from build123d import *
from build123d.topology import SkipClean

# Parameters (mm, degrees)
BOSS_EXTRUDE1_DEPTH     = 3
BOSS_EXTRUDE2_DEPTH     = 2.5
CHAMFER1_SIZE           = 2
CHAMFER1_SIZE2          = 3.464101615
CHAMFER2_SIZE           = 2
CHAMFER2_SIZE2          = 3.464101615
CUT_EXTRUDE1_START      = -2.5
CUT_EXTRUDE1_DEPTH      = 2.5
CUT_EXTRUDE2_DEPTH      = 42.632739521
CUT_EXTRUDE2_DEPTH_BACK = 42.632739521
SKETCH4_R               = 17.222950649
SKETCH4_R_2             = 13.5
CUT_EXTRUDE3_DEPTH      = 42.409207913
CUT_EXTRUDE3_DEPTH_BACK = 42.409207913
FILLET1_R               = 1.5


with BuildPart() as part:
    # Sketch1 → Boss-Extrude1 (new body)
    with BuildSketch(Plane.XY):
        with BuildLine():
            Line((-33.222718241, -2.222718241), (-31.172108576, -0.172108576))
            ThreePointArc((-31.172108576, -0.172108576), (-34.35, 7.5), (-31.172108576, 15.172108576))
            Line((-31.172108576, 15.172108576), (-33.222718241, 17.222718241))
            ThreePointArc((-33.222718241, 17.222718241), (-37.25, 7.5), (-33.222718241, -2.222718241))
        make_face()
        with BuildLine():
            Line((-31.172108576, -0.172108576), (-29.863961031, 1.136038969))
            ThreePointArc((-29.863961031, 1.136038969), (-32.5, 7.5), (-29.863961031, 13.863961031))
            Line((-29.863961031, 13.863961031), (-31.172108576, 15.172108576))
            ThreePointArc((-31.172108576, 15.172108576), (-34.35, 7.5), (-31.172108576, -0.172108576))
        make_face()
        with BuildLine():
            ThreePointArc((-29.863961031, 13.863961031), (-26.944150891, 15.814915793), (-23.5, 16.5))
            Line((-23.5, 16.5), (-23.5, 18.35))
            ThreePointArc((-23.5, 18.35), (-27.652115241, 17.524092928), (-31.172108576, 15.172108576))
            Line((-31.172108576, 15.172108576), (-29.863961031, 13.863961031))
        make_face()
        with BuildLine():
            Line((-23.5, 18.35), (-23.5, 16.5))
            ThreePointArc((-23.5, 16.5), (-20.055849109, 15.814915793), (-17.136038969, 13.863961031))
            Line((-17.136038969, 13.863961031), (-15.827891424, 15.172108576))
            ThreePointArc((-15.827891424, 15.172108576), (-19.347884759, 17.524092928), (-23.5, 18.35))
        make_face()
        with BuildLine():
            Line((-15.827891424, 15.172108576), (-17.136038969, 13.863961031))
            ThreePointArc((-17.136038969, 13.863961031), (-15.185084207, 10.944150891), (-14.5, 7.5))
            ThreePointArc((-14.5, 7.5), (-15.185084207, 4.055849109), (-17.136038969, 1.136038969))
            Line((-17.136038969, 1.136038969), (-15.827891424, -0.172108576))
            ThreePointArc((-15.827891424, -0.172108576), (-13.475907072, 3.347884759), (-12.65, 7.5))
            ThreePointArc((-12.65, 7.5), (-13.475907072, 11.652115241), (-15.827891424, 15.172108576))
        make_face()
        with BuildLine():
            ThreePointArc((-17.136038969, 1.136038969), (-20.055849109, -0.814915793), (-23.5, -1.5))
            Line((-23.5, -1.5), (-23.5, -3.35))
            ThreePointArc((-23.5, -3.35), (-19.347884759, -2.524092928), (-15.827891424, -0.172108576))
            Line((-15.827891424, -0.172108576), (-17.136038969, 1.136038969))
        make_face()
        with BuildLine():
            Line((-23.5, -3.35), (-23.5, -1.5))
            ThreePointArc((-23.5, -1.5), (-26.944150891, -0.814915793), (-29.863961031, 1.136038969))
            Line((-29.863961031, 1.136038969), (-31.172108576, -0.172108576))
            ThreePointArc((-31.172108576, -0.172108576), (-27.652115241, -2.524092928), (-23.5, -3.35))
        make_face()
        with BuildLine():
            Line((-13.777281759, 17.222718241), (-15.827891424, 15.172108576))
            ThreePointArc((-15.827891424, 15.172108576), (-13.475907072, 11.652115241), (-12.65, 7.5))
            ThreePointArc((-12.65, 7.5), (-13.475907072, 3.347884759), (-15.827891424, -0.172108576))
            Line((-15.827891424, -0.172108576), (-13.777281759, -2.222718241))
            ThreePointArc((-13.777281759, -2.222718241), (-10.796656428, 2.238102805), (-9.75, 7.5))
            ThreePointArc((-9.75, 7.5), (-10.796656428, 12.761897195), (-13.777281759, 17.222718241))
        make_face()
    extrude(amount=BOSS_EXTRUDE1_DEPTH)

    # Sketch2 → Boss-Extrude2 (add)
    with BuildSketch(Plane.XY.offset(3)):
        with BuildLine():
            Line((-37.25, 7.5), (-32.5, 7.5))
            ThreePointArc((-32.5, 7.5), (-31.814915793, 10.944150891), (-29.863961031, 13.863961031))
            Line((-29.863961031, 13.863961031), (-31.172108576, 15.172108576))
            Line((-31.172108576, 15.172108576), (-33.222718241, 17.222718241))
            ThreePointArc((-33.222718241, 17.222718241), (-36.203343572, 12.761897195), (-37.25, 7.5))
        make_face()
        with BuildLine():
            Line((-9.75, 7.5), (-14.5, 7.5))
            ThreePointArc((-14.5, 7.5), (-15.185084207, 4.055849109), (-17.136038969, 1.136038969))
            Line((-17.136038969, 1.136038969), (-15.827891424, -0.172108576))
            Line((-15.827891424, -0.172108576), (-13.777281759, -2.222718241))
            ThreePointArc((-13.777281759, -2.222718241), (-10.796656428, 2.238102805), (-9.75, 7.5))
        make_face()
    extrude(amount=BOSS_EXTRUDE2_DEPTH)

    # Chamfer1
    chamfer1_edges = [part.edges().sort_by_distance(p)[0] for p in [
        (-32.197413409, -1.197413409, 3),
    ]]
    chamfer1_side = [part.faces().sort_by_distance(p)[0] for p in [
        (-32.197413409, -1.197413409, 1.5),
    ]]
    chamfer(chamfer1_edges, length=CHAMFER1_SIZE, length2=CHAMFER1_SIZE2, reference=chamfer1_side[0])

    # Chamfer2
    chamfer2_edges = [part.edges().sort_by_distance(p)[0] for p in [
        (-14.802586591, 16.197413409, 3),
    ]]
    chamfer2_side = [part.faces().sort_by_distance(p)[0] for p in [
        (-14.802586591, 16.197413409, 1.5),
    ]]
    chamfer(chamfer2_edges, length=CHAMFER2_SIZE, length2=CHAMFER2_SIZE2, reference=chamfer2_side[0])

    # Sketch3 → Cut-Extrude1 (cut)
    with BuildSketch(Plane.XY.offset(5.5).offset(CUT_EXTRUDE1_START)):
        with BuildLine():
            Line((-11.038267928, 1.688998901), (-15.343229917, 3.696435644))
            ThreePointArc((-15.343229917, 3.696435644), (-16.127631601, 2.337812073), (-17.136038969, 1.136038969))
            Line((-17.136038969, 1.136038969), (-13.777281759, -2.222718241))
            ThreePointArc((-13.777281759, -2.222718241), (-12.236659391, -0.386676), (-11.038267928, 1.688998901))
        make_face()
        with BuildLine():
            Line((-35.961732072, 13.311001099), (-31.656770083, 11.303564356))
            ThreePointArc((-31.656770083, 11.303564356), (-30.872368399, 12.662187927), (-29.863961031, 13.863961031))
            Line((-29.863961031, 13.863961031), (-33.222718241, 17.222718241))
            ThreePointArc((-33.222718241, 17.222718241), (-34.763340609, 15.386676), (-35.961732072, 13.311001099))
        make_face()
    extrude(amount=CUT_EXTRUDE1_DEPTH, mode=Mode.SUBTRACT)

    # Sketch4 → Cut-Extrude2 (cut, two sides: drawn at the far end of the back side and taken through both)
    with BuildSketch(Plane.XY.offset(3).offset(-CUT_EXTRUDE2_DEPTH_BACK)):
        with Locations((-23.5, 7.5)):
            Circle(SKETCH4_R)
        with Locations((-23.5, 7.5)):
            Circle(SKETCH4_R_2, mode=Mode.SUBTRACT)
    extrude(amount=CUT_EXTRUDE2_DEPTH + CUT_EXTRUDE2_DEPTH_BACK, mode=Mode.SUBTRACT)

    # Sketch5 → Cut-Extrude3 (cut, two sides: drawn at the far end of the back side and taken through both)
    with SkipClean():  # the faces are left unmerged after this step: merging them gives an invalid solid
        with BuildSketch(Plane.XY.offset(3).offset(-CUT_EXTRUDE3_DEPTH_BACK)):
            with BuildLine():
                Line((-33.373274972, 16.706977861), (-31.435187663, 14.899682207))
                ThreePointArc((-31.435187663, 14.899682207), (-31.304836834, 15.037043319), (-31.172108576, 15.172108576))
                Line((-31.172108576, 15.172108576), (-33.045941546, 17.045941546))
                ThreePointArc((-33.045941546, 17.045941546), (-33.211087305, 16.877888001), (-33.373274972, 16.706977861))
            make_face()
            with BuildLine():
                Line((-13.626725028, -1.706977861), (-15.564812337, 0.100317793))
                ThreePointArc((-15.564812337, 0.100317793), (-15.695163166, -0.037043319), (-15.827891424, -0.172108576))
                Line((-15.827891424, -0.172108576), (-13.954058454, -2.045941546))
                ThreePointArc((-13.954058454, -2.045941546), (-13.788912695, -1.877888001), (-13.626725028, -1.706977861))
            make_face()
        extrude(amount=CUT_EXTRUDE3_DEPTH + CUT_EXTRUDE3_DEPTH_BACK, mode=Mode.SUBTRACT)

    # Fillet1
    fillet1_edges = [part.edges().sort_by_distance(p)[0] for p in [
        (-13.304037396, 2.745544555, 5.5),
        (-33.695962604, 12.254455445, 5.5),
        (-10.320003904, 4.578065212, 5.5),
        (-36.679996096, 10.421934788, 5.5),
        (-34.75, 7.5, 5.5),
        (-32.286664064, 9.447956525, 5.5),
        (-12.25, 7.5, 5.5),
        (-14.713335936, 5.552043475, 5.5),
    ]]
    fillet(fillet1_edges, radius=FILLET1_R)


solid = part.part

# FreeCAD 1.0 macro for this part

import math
import FreeCAD as App
import Part
import Sketcher

V = App.Vector
Q = App.Units.Quantity


def edges_at(feature, points):
    """Names of the edges that pass closest to the given points."""
    edges = feature.Shape.Edges
    near = lambda p: min(range(len(edges)), key=lambda i: edges[i].distToShape(Part.Vertex(*p))[0])
    return sorted({f"Edge{near(p) + 1}" for p in points})

doc = App.newDocument("Part")
params = doc.addObject("Spreadsheet::Sheet", "Params")
for row, (alias, value) in enumerate([
    ("sketch1_radius", "9 mm"),
    ("sketch1_radius2", "10.85 mm"),
    ("sketch1_radius3", "13.75 mm"),
    ("pad1_length", "3 mm"),
    ("sketch2_radius", "9 mm"),
    ("sketch2_radius2", "13.75 mm"),
    ("pad2_length", "2.5 mm"),
    ("chamfer_size", "2 mm"),
    ("chamfer_size2", "3.464102 mm"),
    ("chamfer2_size", "2 mm"),
    ("chamfer2_size2", "3.464102 mm"),
    ("sketch3_radius", "9 mm"),
    ("sketch3_radius2", "13.75 mm"),
    ("pocket1_length", "2.5 mm"),
    ("sketch4_diameter", "27 mm"),
    ("sketch5_radius", "13.499999 mm"),
    ("sketch5_length", "2.65 mm"),
    ("fillet_radius", "1.5 mm"),
], start=1):
    params.set(f"A{row}", alias)
    params.set(f"B{row}", "=" + value)
    params.setAlias(f"B{row}", alias)

body = doc.addObject("PartDesign::Body", "Body")

# Sketch on XY plane
sketch1 = body.newObject("Sketcher::SketchObject", "Sketch")
sketch1.AttachmentSupport = (doc.getObject("XY_Plane"), [""])
sketch1.MapMode = "FlatFace"
sketch1.addGeometry([
    Part.LineSegment(V(-33.2, -2.2, 0), V(-31.2, -0.2, 0)),  # 0
    Part.ArcOfCircle(Part.Circle(V(-23.5, 7.5, 0), V(0, 0, 1), 10.8), math.radians(-135), math.radians(-90)),  # 1
    Part.ArcOfCircle(Part.Circle(V(-23.5, 7.5, 0), V(0, 0, 1), 10.8), math.radians(-90), math.radians(-45)),  # 2
    Part.LineSegment(V(-15.8, -0.2, 0), V(-13.8, -2.2, 0)),  # 3
    Part.ArcOfCircle(Part.Circle(V(-23.5, 7.5, 0), V(0, 0, 1), 13.7), math.radians(-45), math.radians(0)),  # 4
    Part.ArcOfCircle(Part.Circle(V(-23.5, 7.5, 0), V(0, 0, 1), 13.7), math.radians(0), math.radians(45)),  # 5
    Part.LineSegment(V(-13.8, 17.2, 0), V(-15.8, 15.2, 0)),  # 6
    Part.ArcOfCircle(Part.Circle(V(-23.5, 7.5, 0), V(0, 0, 1), 10.8), math.radians(45), math.radians(90)),  # 7
    Part.ArcOfCircle(Part.Circle(V(-23.5, 7.5, 0), V(0, 0, 1), 10.8), math.radians(90), math.radians(135)),  # 8
    Part.LineSegment(V(-31.2, 15.2, 0), V(-33.2, 17.2, 0)),  # 9
    Part.ArcOfCircle(Part.Circle(V(-23.5, 7.5, 0), V(0, 0, 1), 13.7), math.radians(135), math.radians(225)),  # 10
    Part.ArcOfCircle(Part.Circle(V(-23.5, 7.5, 0), V(0, 0, 1), 9), math.radians(135), math.radians(225)),  # 11
    Part.ArcOfCircle(Part.Circle(V(-23.5, 7.5, 0), V(0, 0, 1), 9), math.radians(90), math.radians(135)),  # 12
    Part.ArcOfCircle(Part.Circle(V(-23.5, 7.5, 0), V(0, 0, 1), 9), math.radians(45), math.radians(90)),  # 13
    Part.ArcOfCircle(Part.Circle(V(-23.5, 7.5, 0), V(0, 0, 1), 9), math.radians(0), math.radians(45)),  # 14
    Part.ArcOfCircle(Part.Circle(V(-23.5, 7.5, 0), V(0, 0, 1), 9), math.radians(-45), math.radians(0)),  # 15
    Part.ArcOfCircle(Part.Circle(V(-23.5, 7.5, 0), V(0, 0, 1), 9), math.radians(-90), math.radians(-45)),  # 16
    Part.ArcOfCircle(Part.Circle(V(-23.5, 7.5, 0), V(0, 0, 1), 9), math.radians(-135), math.radians(-90)),  # 17
], False)
sketch1.addConstraint([
    Sketcher.Constraint("Coincident", 0, 2, 1, 1),
    Sketcher.Constraint("Tangent", 1, 2, 2, 1),
    Sketcher.Constraint("Coincident", 2, 2, 3, 1),
    Sketcher.Constraint("Coincident", 3, 2, 4, 1),
    Sketcher.Constraint("Tangent", 4, 2, 5, 1),
    Sketcher.Constraint("Coincident", 5, 2, 6, 1),
    Sketcher.Constraint("Coincident", 6, 2, 7, 1),
    Sketcher.Constraint("Tangent", 7, 2, 8, 1),
    Sketcher.Constraint("Coincident", 8, 2, 9, 1),
    Sketcher.Constraint("Coincident", 9, 2, 10, 1),
    Sketcher.Constraint("Coincident", 10, 2, 0, 1),
    Sketcher.Constraint("Tangent", 11, 1, 12, 2),
    Sketcher.Constraint("Tangent", 12, 1, 13, 2),
    Sketcher.Constraint("Tangent", 13, 1, 14, 2),
    Sketcher.Constraint("Tangent", 14, 1, 15, 2),
    Sketcher.Constraint("Tangent", 15, 1, 16, 2),
    Sketcher.Constraint("Tangent", 16, 1, 17, 2),
    Sketcher.Constraint("Tangent", 17, 1, 11, 2),
    Sketcher.Constraint("Coincident", 4, 3, 1, 3),
    Sketcher.Constraint("Coincident", 7, 3, 1, 3),
    Sketcher.Constraint("Coincident", 10, 3, 1, 3),
    Sketcher.Constraint("Coincident", 11, 3, 1, 3),
    Sketcher.Constraint("Coincident", 13, 3, 1, 3),
    Sketcher.Constraint("Coincident", 15, 3, 1, 3),
    Sketcher.Constraint("Equal", 1, 2),
    Sketcher.Constraint("Equal", 4, 5),
    Sketcher.Constraint("Equal", 2, 7),
    Sketcher.Constraint("Equal", 7, 8),
    Sketcher.Constraint("Equal", 5, 10),
    Sketcher.Constraint("Perpendicular", 0, 3),
    Sketcher.Constraint("Perpendicular", 3, 6),
    Sketcher.Constraint("Perpendicular", 6, 9),
    Sketcher.Constraint("Horizontal", 0, 2, 2, 2),
    Sketcher.Constraint("Horizontal", 17, 3, 4, 2),
    Sketcher.Constraint("Horizontal", 6, 2, 8, 2),
    Sketcher.Constraint("Horizontal", 5, 2, 9, 2),
    Sketcher.Constraint("Horizontal", 11, 1, 13, 1),
    Sketcher.Constraint("Horizontal", 4, 2, 14, 1),
    Sketcher.Constraint("Horizontal", 15, 1, 17, 1),
    Sketcher.Constraint("Vertical", 17, 3, 1, 2),
    Sketcher.Constraint("Vertical", 3, 2, 5, 2),
    Sketcher.Constraint("Vertical", 1, 2, 7, 2),
    Sketcher.Constraint("Vertical", 7, 2, 12, 1),
    Sketcher.Constraint("Vertical", 13, 1, 15, 1),
    Sketcher.Constraint("Vertical", 12, 1, 16, 1),
    Sketcher.Constraint("Radius", 11, Q("9 mm")),
    Sketcher.Constraint("Radius", 1, Q("10.85 mm")),
    Sketcher.Constraint("Radius", 4, Q("13.75 mm")),
    Sketcher.Constraint("DistanceX", 1, 3, -1, 1, Q("23.5 mm")),
    Sketcher.Constraint("DistanceY", -1, 1, 1, 3, Q("7.5 mm")),
    Sketcher.Constraint("DistanceX", 0, 2, -1, 1, Q("31.172109 mm")),
    Sketcher.Constraint("DistanceX", 11, 1, -1, 1, Q("29.863961 mm")),
])
sketch1.setExpression("Constraints[45]", "Params.sketch1_radius")
sketch1.setExpression("Constraints[46]", "Params.sketch1_radius2")
sketch1.setExpression("Constraints[47]", "Params.sketch1_radius3")
pad1 = body.newObject("PartDesign::Pad", "Pad")
pad1.Profile = sketch1
pad1.setExpression("Length", "Params.pad1_length")

# Sketch on XY plane
sketch2 = body.newObject("Sketcher::SketchObject", "Sketch001")
sketch2.AttachmentSupport = (doc.getObject("XY_Plane"), [""])
sketch2.MapMode = "FlatFace"
sketch2.AttachmentOffset = App.Placement(V(0, 0, 3), App.Rotation())
sketch2.addGeometry([
    Part.LineSegment(V(-37.2, 7.5, 0), V(-32.5, 7.5, 0)),  # 0
    Part.ArcOfCircle(Part.Circle(V(-23.5, 7.5, 0), V(0, 0, 1), 9), math.radians(135), math.radians(180)),  # 1
    Part.LineSegment(V(-29.9, 13.9, 0), V(-33.2, 17.2, 0)),  # 2
    Part.ArcOfCircle(Part.Circle(V(-23.5, 7.5, 0), V(0, 0, 1), 13.7), math.radians(135), math.radians(180)),  # 3
    Part.LineSegment(V(-9.8, 7.5, 0), V(-14.5, 7.5, 0)),  # 4
    Part.ArcOfCircle(Part.Circle(V(-23.5, 7.5, 0), V(0, 0, 1), 9), math.radians(-45), math.radians(0)),  # 5
    Part.LineSegment(V(-17.1, 1.1, 0), V(-13.8, -2.2, 0)),  # 6
    Part.ArcOfCircle(Part.Circle(V(-23.5, 7.5, 0), V(0, 0, 1), 13.7), math.radians(-45), math.radians(0)),  # 7
], False)
sketch2.addConstraint([
    Sketcher.Constraint("Coincident", 0, 2, 1, 2),
    Sketcher.Constraint("Coincident", 1, 1, 2, 1),
    Sketcher.Constraint("Coincident", 2, 2, 3, 1),
    Sketcher.Constraint("Coincident", 3, 2, 0, 1),
    Sketcher.Constraint("Coincident", 4, 2, 5, 2),
    Sketcher.Constraint("Coincident", 5, 1, 6, 1),
    Sketcher.Constraint("Coincident", 6, 2, 7, 1),
    Sketcher.Constraint("Coincident", 7, 2, 4, 1),
    Sketcher.Constraint("Horizontal", 0),
    Sketcher.Constraint("Horizontal", 4),
    Sketcher.Constraint("Coincident", 3, 3, 1, 3),
    Sketcher.Constraint("Coincident", 5, 3, 1, 3),
    Sketcher.Constraint("Coincident", 7, 3, 1, 3),
    Sketcher.Constraint("Equal", 1, 5),
    Sketcher.Constraint("Equal", 3, 7),
    Sketcher.Constraint("Parallel", 2, 6),
    Sketcher.Constraint("Horizontal", 7, 3, 0, 2),
    Sketcher.Constraint("Horizontal", 3, 2, 4, 2),
    Sketcher.Constraint("Radius", 1, Q("9 mm")),
    Sketcher.Constraint("Angle", 2, Q("135 deg")),
    Sketcher.Constraint("Radius", 3, Q("13.75 mm")),
    Sketcher.Constraint("DistanceX", 1, 3, -1, 1, Q("23.5 mm")),
    Sketcher.Constraint("DistanceY", -1, 1, 1, 3, Q("7.5 mm")),
    Sketcher.Constraint("DistanceX", 1, 1, -1, 1, Q("29.863961 mm")),
    Sketcher.Constraint("DistanceX", 5, 1, -1, 1, Q("17.136039 mm")),
])
sketch2.setExpression("Constraints[18]", "Params.sketch2_radius")
sketch2.setExpression("Constraints[20]", "Params.sketch2_radius2")
pad2 = body.newObject("PartDesign::Pad", "Pad001")
pad2.Profile = sketch2
pad2.setExpression("Length", "Params.pad2_length")
doc.recompute()

chamfer = body.newObject("PartDesign::Chamfer", "Chamfer")
chamfer.Base = (pad2, edges_at(pad2, [(-32.197, -1.197, 3)]))
chamfer.ChamferType = "Two distances"
chamfer.setExpression("Size", "Params.chamfer_size")
chamfer.setExpression("Size2", "Params.chamfer_size2")
doc.recompute()

chamfer2 = body.newObject("PartDesign::Chamfer", "Chamfer001")
chamfer2.Base = (chamfer, edges_at(chamfer, [(-14.803, 16.197, 3)]))
chamfer2.ChamferType = "Two distances"
chamfer2.setExpression("Size", "Params.chamfer2_size")
chamfer2.setExpression("Size2", "Params.chamfer2_size2")

# Sketch on XY plane
sketch3 = body.newObject("Sketcher::SketchObject", "Sketch002")
sketch3.AttachmentSupport = (doc.getObject("XY_Plane"), [""])
sketch3.MapMode = "FlatFace"
sketch3.AttachmentOffset = App.Placement(V(0, 0, 3), App.Rotation())
sketch3.addGeometry([
    Part.LineSegment(V(-11, 1.7, 0), V(-15.3, 3.7, 0)),  # 0
    Part.ArcOfCircle(Part.Circle(V(-23.5, 7.5, 0), V(0, 0, 1), 9), math.radians(-45), math.radians(-25)),  # 1
    Part.LineSegment(V(-17.1, 1.1, 0), V(-13.8, -2.2, 0)),  # 2
    Part.ArcOfCircle(Part.Circle(V(-23.5, 7.5, 0), V(0, 0, 1), 13.7), math.radians(-45), math.radians(-25)),  # 3
    Part.LineSegment(V(-36, 13.3, 0), V(-31.7, 11.3, 0)),  # 4
    Part.ArcOfCircle(Part.Circle(V(-23.5, 7.5, 0), V(0, 0, 1), 9), math.radians(135), math.radians(155)),  # 5
    Part.LineSegment(V(-29.9, 13.9, 0), V(-33.2, 17.2, 0)),  # 6
    Part.ArcOfCircle(Part.Circle(V(-23.5, 7.5, 0), V(0, 0, 1), 13.7), math.radians(135), math.radians(155)),  # 7
], False)
sketch3.addConstraint([
    Sketcher.Constraint("Coincident", 0, 2, 1, 2),
    Sketcher.Constraint("Coincident", 1, 1, 2, 1),
    Sketcher.Constraint("Coincident", 2, 2, 3, 1),
    Sketcher.Constraint("Coincident", 3, 2, 0, 1),
    Sketcher.Constraint("Coincident", 4, 2, 5, 2),
    Sketcher.Constraint("Coincident", 5, 1, 6, 1),
    Sketcher.Constraint("Coincident", 6, 2, 7, 1),
    Sketcher.Constraint("Coincident", 7, 2, 4, 1),
    Sketcher.Constraint("Coincident", 3, 3, 1, 3),
    Sketcher.Constraint("Coincident", 5, 3, 1, 3),
    Sketcher.Constraint("Coincident", 7, 3, 1, 3),
    Sketcher.Constraint("Equal", 1, 5),
    Sketcher.Constraint("Equal", 3, 7),
    Sketcher.Constraint("Parallel", 0, 4),
    Sketcher.Constraint("Parallel", 2, 6),
    Sketcher.Constraint("Radius", 1, Q("9 mm")),
    Sketcher.Constraint("Angle", 0, Q("155 deg")),
    Sketcher.Constraint("Angle", 2, Q("-45 deg")),
    Sketcher.Constraint("Radius", 3, Q("13.75 mm")),
    Sketcher.Constraint("DistanceX", 1, 3, -1, 1, Q("23.5 mm")),
    Sketcher.Constraint("DistanceY", -1, 1, 1, 3, Q("7.5 mm")),
    Sketcher.Constraint("DistanceY", -1, 1, 3, 2, Q("1.688999 mm")),
    Sketcher.Constraint("DistanceY", -1, 1, 7, 2, Q("13.311001 mm")),
    Sketcher.Constraint("DistanceX", 1, 1, -1, 1, Q("17.136039 mm")),
    Sketcher.Constraint("DistanceX", 5, 1, -1, 1, Q("29.863961 mm")),
])
sketch3.setExpression("Constraints[15]", "Params.sketch3_radius")
sketch3.setExpression("Constraints[18]", "Params.sketch3_radius2")
pocket1 = body.newObject("PartDesign::Pocket", "Pocket")
pocket1.Profile = sketch3
pocket1.setExpression("Length", "Params.pocket1_length")
pocket1.Reversed = True

# Sketch on XY plane
sketch4 = body.newObject("Sketcher::SketchObject", "Sketch003")
sketch4.AttachmentSupport = (doc.getObject("XY_Plane"), [""])
sketch4.MapMode = "FlatFace"
sketch4.AttachmentOffset = App.Placement(V(0, 0, 3), App.Rotation())
sketch4.addGeometry([
    Part.Circle(V(-24, 8, 0), V(0, 0, 1), 17),
    Part.Circle(V(-24, 8, 0), V(0, 0, 1), 14),
], False)
sketch4.addConstraint([
    Sketcher.Constraint("Coincident", 1, 3, 0, 3),
    Sketcher.Constraint("Diameter", 1, Q("27 mm")),
    Sketcher.Constraint("Diameter", 0, Q("34.445901 mm")),
    Sketcher.Constraint("DistanceX", 0, 3, -1, 1, Q("23.5 mm")),
    Sketcher.Constraint("DistanceY", -1, 1, 0, 3, Q("7.5 mm")),
])
sketch4.setExpression("Constraints[1]", "Params.sketch4_diameter")
pocket2 = body.newObject("PartDesign::Pocket", "Pocket001")
pocket2.Profile = sketch4
pocket2.Type = "ThroughAll"
pocket2.Midplane = True

# Sketch on XY plane
sketch5 = body.newObject("Sketcher::SketchObject", "Sketch004")
sketch5.AttachmentSupport = (doc.getObject("XY_Plane"), [""])
sketch5.MapMode = "FlatFace"
sketch5.AttachmentOffset = App.Placement(V(0, 0, 3), App.Rotation())
sketch5.addGeometry([
    Part.LineSegment(V(-33.37, 16.71, 0), V(-31.44, 14.9, 0)),  # 0
    Part.ArcOfCircle(Part.Circle(V(-23.5, 7.5, 0), V(0, 0, 1), 10.85), math.radians(135), math.radians(137)),  # 1
    Part.LineSegment(V(-31.17, 15.17, 0), V(-33.05, 17.05, 0)),  # 2
    Part.ArcOfCircle(Part.Circle(V(-23.5, 7.5, 0), V(0, 0, 1), 13.5), math.radians(135), math.radians(137)),  # 3
    Part.LineSegment(V(-13.63, -1.71, 0), V(-15.56, 0.1, 0)),  # 4
    Part.ArcOfCircle(Part.Circle(V(-23.5, 7.5, 0), V(0, 0, 1), 10.85), math.radians(-45), math.radians(-43)),  # 5
    Part.LineSegment(V(-15.83, -0.17, 0), V(-13.95, -2.05, 0)),  # 6
    Part.ArcOfCircle(Part.Circle(V(-23.5, 7.5, 0), V(0, 0, 1), 13.5), math.radians(-45), math.radians(-43)),  # 7
], False)
sketch5.addConstraint([
    Sketcher.Constraint("Coincident", 0, 2, 1, 2),
    Sketcher.Constraint("Coincident", 1, 1, 2, 1),
    Sketcher.Constraint("Coincident", 2, 2, 3, 1),
    Sketcher.Constraint("Coincident", 3, 2, 0, 1),
    Sketcher.Constraint("Coincident", 4, 2, 5, 2),
    Sketcher.Constraint("Coincident", 5, 1, 6, 1),
    Sketcher.Constraint("Coincident", 6, 2, 7, 1),
    Sketcher.Constraint("Coincident", 7, 2, 4, 1),
    Sketcher.Constraint("Coincident", 3, 3, 1, 3),
    Sketcher.Constraint("Coincident", 5, 3, 1, 3),
    Sketcher.Constraint("Coincident", 7, 3, 1, 3),
    Sketcher.Constraint("Equal", 1, 5),
    Sketcher.Constraint("Equal", 3, 7),
    Sketcher.Constraint("Parallel", 0, 4),
    Sketcher.Constraint("Parallel", 2, 6),
    Sketcher.Constraint("Radius", 3, Q("13.499999 mm")),
    Sketcher.Constraint("Angle", 0, Q("-43 deg")),
    Sketcher.Constraint("Angle", 2, Q("135 deg")),
    Sketcher.Constraint("DistanceX", 3, 3, -1, 1, Q("23.5 mm")),
    Sketcher.Constraint("DistanceY", -1, 1, 3, 3, Q("7.5 mm")),
    Sketcher.Constraint("Distance", 0, Q("2.65 mm")),
    Sketcher.Constraint("DistanceX", 1, 1, -1, 1, Q("31.172109 mm")),
    Sketcher.Constraint("DistanceX", 5, 1, -1, 1, Q("15.827891 mm")),
    Sketcher.Constraint("DistanceY", 5, 3, 0, 2, Q("7.39968 mm")),
    Sketcher.Constraint("DistanceY", 4, 2, 1, 3, Q("7.39968 mm")),
])
sketch5.setExpression("Constraints[15]", "Params.sketch5_radius")
sketch5.setExpression("Constraints[20]", "Params.sketch5_length")
pocket3 = body.newObject("PartDesign::Pocket", "Pocket002")
pocket3.Profile = sketch5
pocket3.Type = "ThroughAll"
pocket3.Midplane = True
doc.recompute()

fillet = body.newObject("PartDesign::Fillet", "Fillet")
fillet.Base = (pocket3, edges_at(pocket3, [
    (-13.304, 2.746, 5.5),
    (-33.696, 12.254, 5.5),
    (-10.32, 4.578, 5.5),
    (-36.68, 10.422, 5.5),
    (-34.75, 7.5, 5.5),
    (-32.287, 9.448, 5.5),
    (-12.25, 7.5, 5.5),
    (-14.713, 5.552, 5.5),
]))
fillet.setExpression("Radius", "Params.fillet_radius")

doc.recompute()
